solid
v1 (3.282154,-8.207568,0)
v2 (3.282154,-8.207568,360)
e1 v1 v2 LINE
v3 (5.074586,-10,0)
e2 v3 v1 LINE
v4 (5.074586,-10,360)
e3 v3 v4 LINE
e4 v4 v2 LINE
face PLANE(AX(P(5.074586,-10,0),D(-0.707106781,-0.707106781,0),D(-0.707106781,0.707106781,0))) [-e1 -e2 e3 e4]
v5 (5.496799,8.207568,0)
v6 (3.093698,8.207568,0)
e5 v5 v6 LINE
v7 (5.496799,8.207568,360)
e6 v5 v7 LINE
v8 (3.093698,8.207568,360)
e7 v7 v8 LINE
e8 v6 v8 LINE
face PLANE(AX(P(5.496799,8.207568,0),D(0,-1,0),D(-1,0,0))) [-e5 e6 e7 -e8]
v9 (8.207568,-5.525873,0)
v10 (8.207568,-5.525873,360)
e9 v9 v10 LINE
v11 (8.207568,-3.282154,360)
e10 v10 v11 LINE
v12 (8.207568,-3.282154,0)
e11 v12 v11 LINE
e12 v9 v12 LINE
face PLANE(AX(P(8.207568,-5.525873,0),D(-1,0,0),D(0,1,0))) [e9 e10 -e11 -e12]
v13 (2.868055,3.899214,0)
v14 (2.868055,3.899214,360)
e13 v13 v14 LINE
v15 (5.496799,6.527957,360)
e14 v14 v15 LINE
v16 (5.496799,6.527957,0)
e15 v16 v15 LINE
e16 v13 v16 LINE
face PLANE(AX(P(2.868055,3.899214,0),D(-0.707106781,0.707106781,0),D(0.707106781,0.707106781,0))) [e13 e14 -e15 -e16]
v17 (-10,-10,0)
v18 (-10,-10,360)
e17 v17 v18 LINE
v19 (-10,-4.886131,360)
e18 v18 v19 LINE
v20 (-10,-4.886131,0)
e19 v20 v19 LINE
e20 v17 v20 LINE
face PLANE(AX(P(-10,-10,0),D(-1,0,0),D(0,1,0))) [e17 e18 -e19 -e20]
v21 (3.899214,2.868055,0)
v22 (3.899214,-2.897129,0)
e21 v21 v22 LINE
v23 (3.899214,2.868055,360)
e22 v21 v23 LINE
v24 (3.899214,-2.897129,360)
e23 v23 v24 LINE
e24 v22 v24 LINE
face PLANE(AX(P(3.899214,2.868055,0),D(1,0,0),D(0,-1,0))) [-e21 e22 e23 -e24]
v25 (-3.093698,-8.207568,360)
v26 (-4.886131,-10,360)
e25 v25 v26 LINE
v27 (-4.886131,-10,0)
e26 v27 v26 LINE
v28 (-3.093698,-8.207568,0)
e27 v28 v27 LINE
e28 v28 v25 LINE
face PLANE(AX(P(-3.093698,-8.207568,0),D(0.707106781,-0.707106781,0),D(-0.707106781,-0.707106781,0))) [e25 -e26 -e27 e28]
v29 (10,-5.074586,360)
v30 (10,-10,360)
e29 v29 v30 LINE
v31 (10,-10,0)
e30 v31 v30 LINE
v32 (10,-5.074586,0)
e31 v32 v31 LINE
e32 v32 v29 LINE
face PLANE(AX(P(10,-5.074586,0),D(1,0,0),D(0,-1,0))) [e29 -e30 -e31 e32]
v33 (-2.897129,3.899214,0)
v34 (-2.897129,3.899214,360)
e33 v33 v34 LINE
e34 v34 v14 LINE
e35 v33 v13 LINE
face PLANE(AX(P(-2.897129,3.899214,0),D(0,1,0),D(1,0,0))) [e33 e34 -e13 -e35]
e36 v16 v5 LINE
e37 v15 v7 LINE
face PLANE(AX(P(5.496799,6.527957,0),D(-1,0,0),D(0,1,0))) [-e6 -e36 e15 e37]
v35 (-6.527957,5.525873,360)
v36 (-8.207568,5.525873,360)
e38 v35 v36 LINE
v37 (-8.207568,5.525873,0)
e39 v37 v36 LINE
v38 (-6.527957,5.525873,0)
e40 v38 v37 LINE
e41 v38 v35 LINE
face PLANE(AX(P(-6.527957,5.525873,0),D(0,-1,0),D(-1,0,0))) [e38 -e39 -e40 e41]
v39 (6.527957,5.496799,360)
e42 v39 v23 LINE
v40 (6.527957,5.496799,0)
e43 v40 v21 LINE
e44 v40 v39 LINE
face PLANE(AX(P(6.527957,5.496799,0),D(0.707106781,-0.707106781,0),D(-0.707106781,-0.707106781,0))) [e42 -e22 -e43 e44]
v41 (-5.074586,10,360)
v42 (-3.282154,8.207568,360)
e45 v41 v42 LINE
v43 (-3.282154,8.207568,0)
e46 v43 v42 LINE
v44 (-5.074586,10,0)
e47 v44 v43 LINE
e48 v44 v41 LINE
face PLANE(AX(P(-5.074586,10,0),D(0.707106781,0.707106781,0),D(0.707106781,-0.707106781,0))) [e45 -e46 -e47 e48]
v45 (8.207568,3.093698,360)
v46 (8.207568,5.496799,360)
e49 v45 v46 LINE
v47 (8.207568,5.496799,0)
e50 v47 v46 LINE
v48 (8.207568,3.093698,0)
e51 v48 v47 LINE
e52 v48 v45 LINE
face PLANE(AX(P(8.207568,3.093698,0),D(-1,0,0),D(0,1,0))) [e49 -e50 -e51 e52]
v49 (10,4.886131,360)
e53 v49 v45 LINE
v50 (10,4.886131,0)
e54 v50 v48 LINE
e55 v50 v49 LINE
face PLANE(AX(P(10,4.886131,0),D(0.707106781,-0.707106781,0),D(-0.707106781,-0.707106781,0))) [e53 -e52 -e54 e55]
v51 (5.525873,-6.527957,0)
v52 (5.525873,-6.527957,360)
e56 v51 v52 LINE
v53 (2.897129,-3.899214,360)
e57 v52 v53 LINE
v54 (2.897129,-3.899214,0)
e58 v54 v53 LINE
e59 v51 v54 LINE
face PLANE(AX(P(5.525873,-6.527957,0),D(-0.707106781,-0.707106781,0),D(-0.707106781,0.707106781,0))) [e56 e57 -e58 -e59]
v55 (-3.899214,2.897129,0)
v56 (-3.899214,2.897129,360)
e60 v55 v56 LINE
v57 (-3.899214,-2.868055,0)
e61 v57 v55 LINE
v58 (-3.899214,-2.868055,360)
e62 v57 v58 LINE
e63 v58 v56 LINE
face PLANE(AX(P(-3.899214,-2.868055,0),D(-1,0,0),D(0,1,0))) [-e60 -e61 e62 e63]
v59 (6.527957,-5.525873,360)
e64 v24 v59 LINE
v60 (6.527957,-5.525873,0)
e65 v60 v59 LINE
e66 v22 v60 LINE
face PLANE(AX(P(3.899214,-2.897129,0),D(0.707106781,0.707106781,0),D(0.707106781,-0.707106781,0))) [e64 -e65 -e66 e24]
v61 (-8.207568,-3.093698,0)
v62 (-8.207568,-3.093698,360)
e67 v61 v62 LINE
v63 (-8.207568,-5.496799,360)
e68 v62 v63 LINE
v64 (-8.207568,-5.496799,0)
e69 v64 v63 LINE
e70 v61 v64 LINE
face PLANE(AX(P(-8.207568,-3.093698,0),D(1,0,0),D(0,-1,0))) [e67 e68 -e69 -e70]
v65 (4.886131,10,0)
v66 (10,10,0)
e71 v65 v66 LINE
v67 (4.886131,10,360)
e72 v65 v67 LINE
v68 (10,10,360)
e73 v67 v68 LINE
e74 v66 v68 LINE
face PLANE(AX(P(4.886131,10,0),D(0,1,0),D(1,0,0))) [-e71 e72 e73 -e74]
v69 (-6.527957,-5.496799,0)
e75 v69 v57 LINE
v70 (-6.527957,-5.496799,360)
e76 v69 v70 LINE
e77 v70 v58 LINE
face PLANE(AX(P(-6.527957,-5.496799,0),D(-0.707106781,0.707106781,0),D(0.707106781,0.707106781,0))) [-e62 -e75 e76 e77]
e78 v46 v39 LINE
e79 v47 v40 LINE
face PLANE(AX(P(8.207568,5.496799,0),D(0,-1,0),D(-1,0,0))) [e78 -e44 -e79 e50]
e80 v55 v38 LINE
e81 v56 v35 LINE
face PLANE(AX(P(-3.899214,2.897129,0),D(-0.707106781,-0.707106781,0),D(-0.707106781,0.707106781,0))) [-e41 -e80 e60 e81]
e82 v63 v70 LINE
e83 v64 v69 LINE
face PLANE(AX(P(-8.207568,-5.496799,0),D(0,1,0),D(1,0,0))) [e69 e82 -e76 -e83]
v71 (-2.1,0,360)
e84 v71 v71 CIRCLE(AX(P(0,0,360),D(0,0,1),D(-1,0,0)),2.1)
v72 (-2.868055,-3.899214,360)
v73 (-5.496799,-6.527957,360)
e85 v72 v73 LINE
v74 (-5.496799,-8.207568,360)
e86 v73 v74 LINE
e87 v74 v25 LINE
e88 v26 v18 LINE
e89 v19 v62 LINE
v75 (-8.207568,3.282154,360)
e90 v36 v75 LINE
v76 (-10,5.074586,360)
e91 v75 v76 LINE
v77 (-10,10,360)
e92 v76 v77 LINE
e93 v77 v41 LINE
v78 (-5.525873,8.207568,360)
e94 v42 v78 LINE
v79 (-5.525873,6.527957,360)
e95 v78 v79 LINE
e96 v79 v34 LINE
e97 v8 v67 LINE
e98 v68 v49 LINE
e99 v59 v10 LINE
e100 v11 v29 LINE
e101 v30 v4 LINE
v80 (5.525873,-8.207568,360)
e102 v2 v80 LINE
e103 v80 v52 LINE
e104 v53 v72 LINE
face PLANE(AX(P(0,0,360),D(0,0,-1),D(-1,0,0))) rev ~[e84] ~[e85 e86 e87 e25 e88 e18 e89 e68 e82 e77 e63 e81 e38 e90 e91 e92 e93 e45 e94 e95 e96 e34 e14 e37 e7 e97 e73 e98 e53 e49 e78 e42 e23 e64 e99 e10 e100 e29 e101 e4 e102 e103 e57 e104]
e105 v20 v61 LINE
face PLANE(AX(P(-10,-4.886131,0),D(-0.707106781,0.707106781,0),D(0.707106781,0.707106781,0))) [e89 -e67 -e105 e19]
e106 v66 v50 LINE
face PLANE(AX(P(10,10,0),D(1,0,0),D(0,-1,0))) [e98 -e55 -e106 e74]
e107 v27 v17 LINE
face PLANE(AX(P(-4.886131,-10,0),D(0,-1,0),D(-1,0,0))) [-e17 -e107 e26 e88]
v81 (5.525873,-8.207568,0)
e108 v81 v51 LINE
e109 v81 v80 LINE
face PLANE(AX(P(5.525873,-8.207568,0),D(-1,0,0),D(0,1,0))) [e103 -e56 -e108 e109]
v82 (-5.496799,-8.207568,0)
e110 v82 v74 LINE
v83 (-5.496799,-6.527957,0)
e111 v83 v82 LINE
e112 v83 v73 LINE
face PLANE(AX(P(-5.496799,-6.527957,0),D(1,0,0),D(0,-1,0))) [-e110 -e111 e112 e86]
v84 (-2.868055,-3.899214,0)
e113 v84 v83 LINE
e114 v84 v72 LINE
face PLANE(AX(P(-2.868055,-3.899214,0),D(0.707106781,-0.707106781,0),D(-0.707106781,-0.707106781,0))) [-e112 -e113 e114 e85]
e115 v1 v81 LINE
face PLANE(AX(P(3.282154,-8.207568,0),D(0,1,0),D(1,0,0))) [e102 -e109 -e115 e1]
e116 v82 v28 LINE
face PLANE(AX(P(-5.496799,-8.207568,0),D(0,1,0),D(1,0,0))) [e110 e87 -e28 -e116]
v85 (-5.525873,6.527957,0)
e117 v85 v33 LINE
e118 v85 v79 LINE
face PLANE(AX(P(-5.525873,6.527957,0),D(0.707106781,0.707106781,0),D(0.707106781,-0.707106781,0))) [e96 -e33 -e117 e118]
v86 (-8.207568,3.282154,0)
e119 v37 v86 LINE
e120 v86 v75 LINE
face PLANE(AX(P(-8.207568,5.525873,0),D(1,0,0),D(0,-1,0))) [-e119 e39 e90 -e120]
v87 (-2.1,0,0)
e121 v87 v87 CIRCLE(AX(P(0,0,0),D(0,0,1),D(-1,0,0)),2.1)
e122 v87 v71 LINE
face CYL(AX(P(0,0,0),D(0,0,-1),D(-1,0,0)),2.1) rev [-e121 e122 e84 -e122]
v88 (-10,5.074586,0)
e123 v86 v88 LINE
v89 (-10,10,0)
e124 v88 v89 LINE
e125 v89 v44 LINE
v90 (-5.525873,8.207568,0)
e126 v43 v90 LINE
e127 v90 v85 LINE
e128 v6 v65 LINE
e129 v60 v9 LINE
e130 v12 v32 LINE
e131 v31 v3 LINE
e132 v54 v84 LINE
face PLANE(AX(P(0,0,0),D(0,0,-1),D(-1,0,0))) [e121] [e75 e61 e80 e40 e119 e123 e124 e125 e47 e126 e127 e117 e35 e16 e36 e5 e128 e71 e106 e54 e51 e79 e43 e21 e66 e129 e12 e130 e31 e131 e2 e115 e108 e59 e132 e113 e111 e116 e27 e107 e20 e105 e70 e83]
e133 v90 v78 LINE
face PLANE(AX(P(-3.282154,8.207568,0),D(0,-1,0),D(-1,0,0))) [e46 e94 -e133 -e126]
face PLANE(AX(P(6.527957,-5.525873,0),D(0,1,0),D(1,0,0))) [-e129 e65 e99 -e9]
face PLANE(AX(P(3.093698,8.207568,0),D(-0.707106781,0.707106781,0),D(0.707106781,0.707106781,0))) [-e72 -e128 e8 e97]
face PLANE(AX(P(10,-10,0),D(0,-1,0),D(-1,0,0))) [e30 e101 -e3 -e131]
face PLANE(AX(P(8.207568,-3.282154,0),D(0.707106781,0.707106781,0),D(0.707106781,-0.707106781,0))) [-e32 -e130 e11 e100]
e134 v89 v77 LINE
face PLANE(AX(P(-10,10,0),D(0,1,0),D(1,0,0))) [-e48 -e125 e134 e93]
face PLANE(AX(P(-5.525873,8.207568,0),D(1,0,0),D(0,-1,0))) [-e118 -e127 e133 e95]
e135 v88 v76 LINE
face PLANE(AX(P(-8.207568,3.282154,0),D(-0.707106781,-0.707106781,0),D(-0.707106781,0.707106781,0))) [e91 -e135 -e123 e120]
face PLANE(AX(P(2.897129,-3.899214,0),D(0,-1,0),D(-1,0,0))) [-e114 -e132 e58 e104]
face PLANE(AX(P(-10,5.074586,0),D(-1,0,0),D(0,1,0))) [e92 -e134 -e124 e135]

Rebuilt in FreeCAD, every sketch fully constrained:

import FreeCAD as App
import Part
import Sketcher


def add_polygon(sketch, points):
    """Adds a closed chain of lines whose ends are joined by coincident constraints."""
    first, n = sketch.GeometryCount, len(points)
    for a, b in zip(points, points[1:] + points[:1]):
        sketch.addGeometry(Part.LineSegment(App.Vector(*a, 0), App.Vector(*b, 0)), False)
    for i in range(n):
        sketch.addConstraint(Sketcher.Constraint("Coincident", first + i, 2, first + (i + 1) % n, 1))

doc = App.newDocument("Part")
body = doc.addObject("PartDesign::Body", "Body")

sketch1 = body.newObject("Sketcher::SketchObject", "Sketch")
sketch1.AttachmentSupport = (doc.getObject("XY_Plane"), [""])
sketch1.MapMode = "FlatFace"
add_polygon(sketch1, [(-3.3, 8.2), (-5.1, 10), (-10, 10), (-10, 5.1), (-8.2, 3.3), (-8.2, 5.5), (-6.5, 5.5), (-3.9, 2.9), (-3.9, -2.9), (-6.5, -5.5), (-8.2, -5.5), (-8.2, -3.1), (-10, -4.9), (-10, -10), (-4.9, -10), (-3.1, -8.2), (-5.5, -8.2), (-5.5, -6.5), (-2.9, -3.9), (2.9, -3.9), (5.5, -6.5), (5.5, -8.2), (3.3, -8.2), (5.1, -10), (10, -10), (10, -5.1), (8.2, -3.3), (8.2, -5.5), (6.5, -5.5), (3.9, -2.9), (3.9, 2.9), (6.5, 5.5), (8.2, 5.5), (8.2, 3.1), (10, 4.9), (10, 10), (4.9, 10), (3.1, 8.2), (5.5, 8.2), (5.5, 6.5), (2.9, 3.9), (-2.9, 3.9), (-5.5, 6.5), (-5.5, 8.2)])
sketch1.addGeometry(Part.Circle(App.Vector(0, 0, 0), App.Vector(0, 0, 1), 2.1), False)
sketch1.addConstraint([
    Sketcher.Constraint("Horizontal", 1),
    Sketcher.Constraint("Vertical", 2),
    Sketcher.Constraint("Vertical", 4),
    Sketcher.Constraint("Horizontal", 5),
    Sketcher.Constraint("Vertical", 7),
    Sketcher.Constraint("Horizontal", 9),
    Sketcher.Constraint("Vertical", 10),
    Sketcher.Constraint("Vertical", 12),
    Sketcher.Constraint("Horizontal", 13),
    Sketcher.Constraint("Horizontal", 15),
    Sketcher.Constraint("Vertical", 16),
    Sketcher.Constraint("Horizontal", 18),
    Sketcher.Constraint("Vertical", 20),
    Sketcher.Constraint("Horizontal", 21),
    Sketcher.Constraint("Horizontal", 23),
    Sketcher.Constraint("Vertical", 24),
    Sketcher.Constraint("Vertical", 26),
    Sketcher.Constraint("Horizontal", 27),
    Sketcher.Constraint("Vertical", 29),
    Sketcher.Constraint("Horizontal", 31),
    Sketcher.Constraint("Vertical", 32),
    Sketcher.Constraint("Vertical", 34),
    Sketcher.Constraint("Horizontal", 35),
    Sketcher.Constraint("Horizontal", 37),
    Sketcher.Constraint("Vertical", 38),
    Sketcher.Constraint("Horizontal", 40),
    Sketcher.Constraint("Vertical", 42),
    Sketcher.Constraint("Horizontal", 43),
    Sketcher.Constraint("Coincident", 44, 3, -1, 1),
    Sketcher.Constraint("Symmetric", 0, 2, 22, 2, -1, 1),
    Sketcher.Constraint("Symmetric", 2, 2, 24, 2, -1, 1),
    Sketcher.Constraint("Symmetric", 3, 2, 25, 2, -1, 1),
    Sketcher.Constraint("Symmetric", 5, 2, 27, 2, -1, 1),
    Sketcher.Constraint("Symmetric", 6, 2, 28, 2, -1, 1),
    Sketcher.Constraint("Symmetric", 8, 2, 30, 2, -1, 1),
    Sketcher.Constraint("Symmetric", 10, 2, 32, 2, -1, 1),
    Sketcher.Constraint("Symmetric", 11, 2, 33, 2, -1, 1),
    Sketcher.Constraint("Symmetric", 13, 2, 35, 2, -1, 1),
    Sketcher.Constraint("Symmetric", 14, 2, 36, 2, -1, 1),
    Sketcher.Constraint("Symmetric", 16, 2, 38, 2, -1, 1),
    Sketcher.Constraint("Symmetric", 17, 2, 39, 2, -1, 1),
    Sketcher.Constraint("Symmetric", 19, 2, 41, 2, -1, 1),
    Sketcher.Constraint("Symmetric", 21, 2, 43, 2, -1, 1),
    Sketcher.Constraint("Symmetric", 12, 2, 23, 2, -2),
    Sketcher.Constraint("Parallel", 0, 3),
    Sketcher.Constraint("Parallel", 3, 6),
    Sketcher.Constraint("Perpendicular", 6, 8),
    Sketcher.Constraint("Parallel", 8, 11),
    Sketcher.Constraint("Parallel", 11, 14),
    Sketcher.Constraint("Parallel", 14, 17),
    Sketcher.Constraint("Perpendicular", 17, 19),
    Sketcher.Constraint("Perpendicular", 28, 30),
    Sketcher.Constraint("Perpendicular", 39, 41),
    Sketcher.Constraint("Horizontal", 16, 2, 19, 2),
    Sketcher.Constraint("Horizontal", 15, 2, 20, 2),
    Sketcher.Constraint("Vertical", 5, 2, 8, 2),
    Sketcher.Constraint("Vertical", 4, 2, 9, 2),
    Sketcher.Constraint("Equal", 23, 2),
    Sketcher.Constraint("Equal", 43, 4),
    Sketcher.Constraint("Equal", 40, 7),
    Sketcher.Constraint("Equal", 37, 10),
    Sketcher.Constraint("Equal", 35, 12),
    Sketcher.Constraint("Equal", 31, 16),
    Sketcher.Constraint("Equal", 0, 3),
    Sketcher.Constraint("Equal", 6, 8),
    Sketcher.Constraint("Equal", 8, 17),
    Sketcher.Constraint("Diameter", 44, 4.2),
    Sketcher.Constraint("DistanceY", -1, 1, 0, 2, 10.0),
    Sketcher.Constraint("DistanceX", 15, 2, 15, 1, 2.4031),
    Sketcher.Constraint("DistanceX", 5, 1, 5, 2, 1.679611),
    Sketcher.Constraint("DistanceX", 13, 1, 13, 2, 5.113869),
    Sketcher.Constraint("DistanceX", 21, 2, 21, 1, 2.243719),
    Sketcher.Constraint("DistanceY", 8, 2, -1, 1, 5.496799),
    Sketcher.Constraint("DistanceX", 1, 2, 1, 1, 4.925414),
    Sketcher.Constraint("DistanceX", 18, 1, 18, 2, 5.765184),
])
pad1 = body.newObject("PartDesign::Pad", "Pad")
pad1.Profile = sketch1
pad1.Length = 360

doc.recompute()
